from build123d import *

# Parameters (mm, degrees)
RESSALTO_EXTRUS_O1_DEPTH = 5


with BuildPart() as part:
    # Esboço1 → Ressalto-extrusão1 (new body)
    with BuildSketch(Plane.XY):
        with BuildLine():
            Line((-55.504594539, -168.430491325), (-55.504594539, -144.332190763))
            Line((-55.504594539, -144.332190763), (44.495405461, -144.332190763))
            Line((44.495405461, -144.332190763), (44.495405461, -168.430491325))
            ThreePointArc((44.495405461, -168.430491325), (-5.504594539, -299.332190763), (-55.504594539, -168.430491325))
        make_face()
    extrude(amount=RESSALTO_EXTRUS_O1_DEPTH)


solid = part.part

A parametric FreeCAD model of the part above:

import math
import FreeCAD as App
import Part
import Sketcher

doc = App.newDocument("Part")
body = doc.addObject("PartDesign::Body", "Body")

sketch1 = body.newObject("Sketcher::SketchObject", "Sketch")
sketch1.AttachmentSupport = (doc.getObject("XY_Plane"), [""])
sketch1.MapMode = "FlatFace"
sketch1.addGeometry(Part.LineSegment(App.Vector(-56, -144, 0), App.Vector(-56, -168, 0)), False)
sketch1.addGeometry(Part.ArcOfCircle(Part.Circle(App.Vector(-6, -224, 0), App.Vector(0, 0, 1), 75), math.radians(132), math.radians(408)), False)
sketch1.addGeometry(Part.LineSegment(App.Vector(44, -168, 0), App.Vector(44, -144, 0)), False)
sketch1.addGeometry(Part.LineSegment(App.Vector(44, -144, 0), App.Vector(-56, -144, 0)), False)
sketch1.addConstraint(Sketcher.Constraint("Coincident", 0, 2, 1, 1))
sketch1.addConstraint(Sketcher.Constraint("Coincident", 1, 2, 2, 1))
sketch1.addConstraint(Sketcher.Constraint("Coincident", 2, 2, 3, 1))
sketch1.addConstraint(Sketcher.Constraint("Coincident", 3, 2, 0, 1))
sketch1.addConstraint(Sketcher.Constraint("Vertical", 0))
sketch1.addConstraint(Sketcher.Constraint("Vertical", 2))
sketch1.addConstraint(Sketcher.Constraint("Horizontal", 3))
sketch1.addConstraint(Sketcher.Constraint("Horizontal", 0, 2, 1, 2))
sketch1.addConstraint(Sketcher.Constraint("Radius", 1, 75.0))
sketch1.addConstraint(Sketcher.Constraint("DistanceX", 3, 2, 3, 1, 100.0))
sketch1.addConstraint(Sketcher.Constraint("DistanceY", 1, 3, 2, 2, 80.0))
sketch1.addConstraint(Sketcher.Constraint("DistanceY", 1, 3, -1, 1, 224.332191))
sketch1.addConstraint(Sketcher.Constraint("DistanceX", 1, 3, -1, 1, 5.504595))
pad1 = body.newObject("PartDesign::Pad", "Pad")
pad1.Profile = sketch1
pad1.Length = 5

doc.recompute()
